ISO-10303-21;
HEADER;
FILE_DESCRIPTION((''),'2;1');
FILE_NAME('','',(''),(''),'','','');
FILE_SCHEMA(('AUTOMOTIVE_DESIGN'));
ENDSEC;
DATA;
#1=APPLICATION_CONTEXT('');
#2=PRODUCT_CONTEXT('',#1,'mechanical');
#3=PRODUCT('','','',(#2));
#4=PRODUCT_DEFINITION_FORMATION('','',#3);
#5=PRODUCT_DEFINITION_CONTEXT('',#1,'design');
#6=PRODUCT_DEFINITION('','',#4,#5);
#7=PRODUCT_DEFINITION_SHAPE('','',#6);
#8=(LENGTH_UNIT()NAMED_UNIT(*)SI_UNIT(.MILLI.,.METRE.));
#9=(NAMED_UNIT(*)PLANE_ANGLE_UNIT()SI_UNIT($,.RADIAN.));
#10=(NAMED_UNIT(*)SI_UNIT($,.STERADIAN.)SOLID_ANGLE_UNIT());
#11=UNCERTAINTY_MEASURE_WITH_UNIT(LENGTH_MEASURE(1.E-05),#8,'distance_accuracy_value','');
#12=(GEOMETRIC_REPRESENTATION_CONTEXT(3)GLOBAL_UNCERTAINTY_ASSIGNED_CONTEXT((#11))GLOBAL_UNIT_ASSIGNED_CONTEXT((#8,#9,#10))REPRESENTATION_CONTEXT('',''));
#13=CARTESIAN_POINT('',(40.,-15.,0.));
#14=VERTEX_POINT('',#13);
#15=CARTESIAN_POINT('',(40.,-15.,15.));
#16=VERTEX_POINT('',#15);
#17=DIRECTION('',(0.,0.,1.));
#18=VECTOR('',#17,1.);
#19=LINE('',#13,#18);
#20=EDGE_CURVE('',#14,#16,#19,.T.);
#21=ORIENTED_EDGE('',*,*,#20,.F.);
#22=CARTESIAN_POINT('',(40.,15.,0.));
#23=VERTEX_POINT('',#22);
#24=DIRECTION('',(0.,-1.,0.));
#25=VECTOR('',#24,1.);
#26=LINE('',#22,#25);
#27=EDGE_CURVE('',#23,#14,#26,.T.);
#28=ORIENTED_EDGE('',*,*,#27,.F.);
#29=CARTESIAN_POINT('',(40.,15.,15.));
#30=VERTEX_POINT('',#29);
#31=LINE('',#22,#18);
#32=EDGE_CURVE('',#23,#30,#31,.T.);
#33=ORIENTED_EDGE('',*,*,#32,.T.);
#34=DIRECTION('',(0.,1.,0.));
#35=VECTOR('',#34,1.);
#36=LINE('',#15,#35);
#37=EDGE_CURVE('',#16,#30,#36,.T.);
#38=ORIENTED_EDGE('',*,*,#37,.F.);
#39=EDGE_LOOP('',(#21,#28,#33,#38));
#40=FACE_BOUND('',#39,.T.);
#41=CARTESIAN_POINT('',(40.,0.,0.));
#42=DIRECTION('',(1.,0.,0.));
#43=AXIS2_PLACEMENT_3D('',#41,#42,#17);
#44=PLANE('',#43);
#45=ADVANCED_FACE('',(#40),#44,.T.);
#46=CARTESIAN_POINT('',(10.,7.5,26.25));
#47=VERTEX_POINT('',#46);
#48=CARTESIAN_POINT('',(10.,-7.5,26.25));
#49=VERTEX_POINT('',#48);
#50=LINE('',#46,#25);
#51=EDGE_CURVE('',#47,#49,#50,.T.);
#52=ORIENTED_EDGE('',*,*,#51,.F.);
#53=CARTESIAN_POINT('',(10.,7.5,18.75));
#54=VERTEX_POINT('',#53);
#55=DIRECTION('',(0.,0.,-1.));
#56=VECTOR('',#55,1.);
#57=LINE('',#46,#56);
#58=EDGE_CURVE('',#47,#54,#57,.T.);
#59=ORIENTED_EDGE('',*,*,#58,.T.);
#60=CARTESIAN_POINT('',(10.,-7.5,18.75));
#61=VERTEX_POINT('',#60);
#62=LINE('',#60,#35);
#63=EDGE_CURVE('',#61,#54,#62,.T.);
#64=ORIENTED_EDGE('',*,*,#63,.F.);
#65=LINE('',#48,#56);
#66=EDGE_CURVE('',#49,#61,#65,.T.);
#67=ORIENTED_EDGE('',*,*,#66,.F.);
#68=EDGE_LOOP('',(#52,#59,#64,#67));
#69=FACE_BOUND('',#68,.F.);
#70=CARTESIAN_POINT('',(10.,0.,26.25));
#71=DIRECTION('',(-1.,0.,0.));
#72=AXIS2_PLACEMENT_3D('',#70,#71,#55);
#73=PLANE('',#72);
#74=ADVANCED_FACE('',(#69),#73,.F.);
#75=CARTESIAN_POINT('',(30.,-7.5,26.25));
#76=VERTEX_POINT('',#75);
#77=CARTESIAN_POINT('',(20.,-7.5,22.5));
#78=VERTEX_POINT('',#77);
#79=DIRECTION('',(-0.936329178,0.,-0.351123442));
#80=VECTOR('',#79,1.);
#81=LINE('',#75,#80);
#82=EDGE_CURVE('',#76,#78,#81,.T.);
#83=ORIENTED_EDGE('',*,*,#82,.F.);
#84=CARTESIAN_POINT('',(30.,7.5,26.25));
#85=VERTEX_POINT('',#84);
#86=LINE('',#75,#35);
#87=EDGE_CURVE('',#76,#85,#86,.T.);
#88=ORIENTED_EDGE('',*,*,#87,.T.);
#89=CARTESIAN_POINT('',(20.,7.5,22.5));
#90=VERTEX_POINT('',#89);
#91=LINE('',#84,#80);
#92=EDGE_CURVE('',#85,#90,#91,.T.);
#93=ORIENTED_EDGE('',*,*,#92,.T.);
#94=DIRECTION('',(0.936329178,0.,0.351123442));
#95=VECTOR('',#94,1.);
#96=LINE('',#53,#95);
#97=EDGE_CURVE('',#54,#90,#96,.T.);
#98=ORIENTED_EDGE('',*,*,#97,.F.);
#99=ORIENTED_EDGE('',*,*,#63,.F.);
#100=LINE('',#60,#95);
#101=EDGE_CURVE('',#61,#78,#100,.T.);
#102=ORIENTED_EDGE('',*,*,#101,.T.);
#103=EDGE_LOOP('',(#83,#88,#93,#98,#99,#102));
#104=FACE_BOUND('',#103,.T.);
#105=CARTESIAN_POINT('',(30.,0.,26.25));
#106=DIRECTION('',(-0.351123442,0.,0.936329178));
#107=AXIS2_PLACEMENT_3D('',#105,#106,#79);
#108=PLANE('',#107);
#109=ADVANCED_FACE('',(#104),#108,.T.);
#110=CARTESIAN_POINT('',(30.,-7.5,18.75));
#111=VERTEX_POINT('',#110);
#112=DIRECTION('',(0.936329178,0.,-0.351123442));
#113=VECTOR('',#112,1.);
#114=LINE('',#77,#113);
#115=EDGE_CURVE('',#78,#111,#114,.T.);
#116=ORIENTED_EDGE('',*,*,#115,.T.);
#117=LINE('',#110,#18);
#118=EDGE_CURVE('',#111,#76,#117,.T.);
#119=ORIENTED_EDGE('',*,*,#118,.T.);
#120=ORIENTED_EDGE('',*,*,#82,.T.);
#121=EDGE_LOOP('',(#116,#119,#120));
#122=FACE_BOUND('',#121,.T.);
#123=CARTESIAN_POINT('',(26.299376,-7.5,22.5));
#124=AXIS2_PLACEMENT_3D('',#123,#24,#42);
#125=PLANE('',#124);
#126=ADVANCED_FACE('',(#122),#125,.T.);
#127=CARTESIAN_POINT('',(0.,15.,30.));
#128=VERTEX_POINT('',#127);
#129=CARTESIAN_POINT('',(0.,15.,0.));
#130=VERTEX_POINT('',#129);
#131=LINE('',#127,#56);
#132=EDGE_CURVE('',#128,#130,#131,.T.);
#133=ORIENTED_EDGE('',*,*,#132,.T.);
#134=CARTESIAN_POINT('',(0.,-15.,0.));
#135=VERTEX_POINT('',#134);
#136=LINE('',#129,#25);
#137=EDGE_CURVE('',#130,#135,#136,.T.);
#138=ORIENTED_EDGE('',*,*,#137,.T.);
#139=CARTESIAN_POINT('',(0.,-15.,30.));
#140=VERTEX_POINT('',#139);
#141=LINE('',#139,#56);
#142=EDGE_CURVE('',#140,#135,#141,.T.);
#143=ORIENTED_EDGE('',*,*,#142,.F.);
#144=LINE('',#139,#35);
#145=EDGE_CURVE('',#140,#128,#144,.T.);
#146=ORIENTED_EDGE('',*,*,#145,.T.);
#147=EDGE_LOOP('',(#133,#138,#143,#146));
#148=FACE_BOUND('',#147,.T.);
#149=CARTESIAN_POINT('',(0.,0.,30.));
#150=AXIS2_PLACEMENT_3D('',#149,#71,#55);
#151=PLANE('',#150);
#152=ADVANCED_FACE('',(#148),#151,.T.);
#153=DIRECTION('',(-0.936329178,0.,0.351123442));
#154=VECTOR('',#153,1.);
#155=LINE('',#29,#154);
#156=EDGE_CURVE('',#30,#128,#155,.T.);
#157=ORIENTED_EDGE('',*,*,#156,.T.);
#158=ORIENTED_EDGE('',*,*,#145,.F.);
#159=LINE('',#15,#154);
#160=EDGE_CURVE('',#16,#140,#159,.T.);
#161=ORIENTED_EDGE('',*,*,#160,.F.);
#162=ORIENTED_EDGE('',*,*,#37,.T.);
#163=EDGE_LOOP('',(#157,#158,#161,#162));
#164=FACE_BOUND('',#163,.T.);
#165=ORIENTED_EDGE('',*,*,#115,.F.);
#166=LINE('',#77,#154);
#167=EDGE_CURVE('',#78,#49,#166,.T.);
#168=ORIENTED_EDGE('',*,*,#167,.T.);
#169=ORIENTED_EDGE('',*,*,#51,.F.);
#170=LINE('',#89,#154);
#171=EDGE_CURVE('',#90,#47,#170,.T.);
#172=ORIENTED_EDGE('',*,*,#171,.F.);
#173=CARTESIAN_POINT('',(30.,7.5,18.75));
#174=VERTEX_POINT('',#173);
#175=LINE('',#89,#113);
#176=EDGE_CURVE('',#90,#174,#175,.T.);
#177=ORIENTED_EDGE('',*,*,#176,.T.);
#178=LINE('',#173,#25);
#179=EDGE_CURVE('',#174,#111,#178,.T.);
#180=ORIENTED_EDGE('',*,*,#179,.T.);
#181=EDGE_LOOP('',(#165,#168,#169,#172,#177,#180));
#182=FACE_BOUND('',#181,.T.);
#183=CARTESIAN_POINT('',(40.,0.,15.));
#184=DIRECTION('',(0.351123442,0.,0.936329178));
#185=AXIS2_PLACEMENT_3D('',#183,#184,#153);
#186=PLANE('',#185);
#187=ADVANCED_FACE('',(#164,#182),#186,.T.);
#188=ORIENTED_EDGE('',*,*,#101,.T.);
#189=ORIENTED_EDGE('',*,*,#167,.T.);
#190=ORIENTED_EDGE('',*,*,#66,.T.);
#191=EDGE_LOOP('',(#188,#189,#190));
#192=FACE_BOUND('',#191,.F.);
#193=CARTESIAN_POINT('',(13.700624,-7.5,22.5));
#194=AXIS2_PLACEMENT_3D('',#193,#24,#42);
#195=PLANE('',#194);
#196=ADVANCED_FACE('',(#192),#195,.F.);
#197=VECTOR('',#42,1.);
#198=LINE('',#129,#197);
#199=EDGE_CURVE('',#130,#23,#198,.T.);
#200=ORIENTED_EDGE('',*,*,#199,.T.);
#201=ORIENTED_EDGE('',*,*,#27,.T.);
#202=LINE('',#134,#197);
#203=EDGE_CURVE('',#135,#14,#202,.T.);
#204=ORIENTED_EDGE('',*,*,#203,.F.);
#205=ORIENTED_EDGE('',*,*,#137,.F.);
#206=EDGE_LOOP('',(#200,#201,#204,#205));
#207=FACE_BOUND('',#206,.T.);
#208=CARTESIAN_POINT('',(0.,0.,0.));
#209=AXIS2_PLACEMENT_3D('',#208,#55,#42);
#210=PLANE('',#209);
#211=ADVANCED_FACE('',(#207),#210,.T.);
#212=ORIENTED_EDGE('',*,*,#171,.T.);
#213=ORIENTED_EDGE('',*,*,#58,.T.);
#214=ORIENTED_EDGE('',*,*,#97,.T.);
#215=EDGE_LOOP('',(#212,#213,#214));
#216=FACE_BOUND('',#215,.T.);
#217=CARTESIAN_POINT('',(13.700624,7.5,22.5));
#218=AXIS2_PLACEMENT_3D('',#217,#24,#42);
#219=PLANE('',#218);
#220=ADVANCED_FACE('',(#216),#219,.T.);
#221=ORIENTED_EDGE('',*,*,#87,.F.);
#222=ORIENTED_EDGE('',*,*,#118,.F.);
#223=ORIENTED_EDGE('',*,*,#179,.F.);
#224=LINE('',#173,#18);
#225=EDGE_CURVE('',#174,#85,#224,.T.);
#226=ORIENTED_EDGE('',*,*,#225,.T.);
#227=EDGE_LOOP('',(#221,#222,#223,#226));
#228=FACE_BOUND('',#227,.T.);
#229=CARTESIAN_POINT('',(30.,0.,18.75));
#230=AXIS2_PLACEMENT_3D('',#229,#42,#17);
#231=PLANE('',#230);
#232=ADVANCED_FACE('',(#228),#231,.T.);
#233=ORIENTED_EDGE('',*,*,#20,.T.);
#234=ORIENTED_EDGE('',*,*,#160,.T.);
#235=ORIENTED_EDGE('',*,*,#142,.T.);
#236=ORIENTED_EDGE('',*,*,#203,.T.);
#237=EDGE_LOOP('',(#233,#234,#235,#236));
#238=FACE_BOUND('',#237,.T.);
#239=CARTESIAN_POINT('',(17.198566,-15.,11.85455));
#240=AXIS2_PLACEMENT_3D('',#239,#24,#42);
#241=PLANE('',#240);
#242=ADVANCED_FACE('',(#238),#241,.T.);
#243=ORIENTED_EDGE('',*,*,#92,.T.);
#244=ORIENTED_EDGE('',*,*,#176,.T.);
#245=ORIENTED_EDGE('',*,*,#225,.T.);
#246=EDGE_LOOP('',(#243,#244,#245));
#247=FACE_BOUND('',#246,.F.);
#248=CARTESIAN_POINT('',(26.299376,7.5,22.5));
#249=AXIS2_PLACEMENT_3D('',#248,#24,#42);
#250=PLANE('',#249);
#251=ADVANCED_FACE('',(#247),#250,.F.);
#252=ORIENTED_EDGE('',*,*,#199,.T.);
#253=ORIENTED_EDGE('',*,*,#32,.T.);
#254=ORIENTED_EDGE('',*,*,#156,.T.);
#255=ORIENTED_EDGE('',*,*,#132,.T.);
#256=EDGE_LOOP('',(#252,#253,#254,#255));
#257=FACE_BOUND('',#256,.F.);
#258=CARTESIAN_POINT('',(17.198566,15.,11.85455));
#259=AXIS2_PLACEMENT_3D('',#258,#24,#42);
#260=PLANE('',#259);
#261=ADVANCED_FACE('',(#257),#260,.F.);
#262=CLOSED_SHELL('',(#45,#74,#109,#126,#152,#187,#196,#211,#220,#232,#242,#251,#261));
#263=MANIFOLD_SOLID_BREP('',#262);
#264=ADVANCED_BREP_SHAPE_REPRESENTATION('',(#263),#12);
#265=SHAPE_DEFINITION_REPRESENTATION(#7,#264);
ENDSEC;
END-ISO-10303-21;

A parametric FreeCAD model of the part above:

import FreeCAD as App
import Part
import Sketcher

V = App.Vector
Q = App.Units.Quantity

doc = App.newDocument("Part")
body = doc.addObject("PartDesign::Body", "Body")

# Sketch on XZ plane
sketch1 = doc.addObject("Sketcher::SketchObject", "Sketch")
body.addObject(sketch1)
sketch1.AttachmentSupport = (doc.XZ_Plane, [""])
sketch1.MapMode = "FlatFace"
sketch1.addGeometry([
    Part.LineSegment(V(0, 30, 0), V(0, 0, 0)),
    Part.LineSegment(V(0, 0, 0), V(40, 0, 0)),
    Part.LineSegment(V(40, 0, 0), V(40, 15, 0)),
    Part.LineSegment(V(40, 15, 0), V(0, 30, 0)),
], False)
sketch1.addConstraint([
    Sketcher.Constraint("Coincident", 0, 2, 1, 1),
    Sketcher.Constraint("Coincident", 1, 2, 2, 1),
    Sketcher.Constraint("Coincident", 2, 2, 3, 1),
    Sketcher.Constraint("Coincident", 3, 2, 0, 1),
    Sketcher.Constraint("Vertical", 0),
    Sketcher.Constraint("Horizontal", 1),
    Sketcher.Constraint("Vertical", 2),
    Sketcher.Constraint("Coincident", 0, 2, -1, 1),
    Sketcher.Constraint("DistanceX", 1, 1, 1, 2, Q("40 mm")),
    Sketcher.Constraint("DistanceY", 0, 2, 0, 1, Q("30 mm")),
    Sketcher.Constraint("DistanceY", 2, 1, 2, 2, Q("15 mm")),
])
pad1 = doc.addObject("PartDesign::Pad", "Pad")
body.addObject(pad1)
pad1.Profile = sketch1
pad1.Length = 30
pad1.Midplane = True

# Sketch on XZ plane
sketch2 = doc.addObject("Sketcher::SketchObject", "Sketch001")
body.addObject(sketch2)
sketch2.AttachmentSupport = (doc.XZ_Plane, [""])
sketch2.MapMode = "FlatFace"
sketch2.addGeometry([
    Part.LineSegment(V(20, 22.5, 0), V(10, 26.25, 0)),
    Part.LineSegment(V(10, 26.25, 0), V(10, 18.75, 0)),
    Part.LineSegment(V(10, 18.75, 0), V(20, 22.5, 0)),
], False)
sketch2.addConstraint([
    Sketcher.Constraint("Coincident", 0, 2, 1, 1),
    Sketcher.Constraint("Coincident", 1, 2, 2, 1),
    Sketcher.Constraint("Coincident", 2, 2, 0, 1),
    Sketcher.Constraint("Vertical", 1),
    Sketcher.Constraint("Equal", 0, 2),
    Sketcher.Constraint("DistanceY", 1, 2, 1, 1, Q("7.5 mm")),
    Sketcher.Constraint("DistanceX", -1, 1, 0, 2, Q("10 mm")),
    Sketcher.Constraint("DistanceX", -1, 1, 2, 2, Q("20 mm")),
    Sketcher.Constraint("DistanceY", -1, 1, 2, 2, Q("22.5 mm")),
])
pocket1 = doc.addObject("PartDesign::Pocket", "Pocket")
body.addObject(pocket1)
pocket1.Profile = sketch2
pocket1.Length = 15
pocket1.Midplane = True

# Sketch on XZ plane
sketch3 = doc.addObject("Sketcher::SketchObject", "Sketch002")
body.addObject(sketch3)
sketch3.AttachmentSupport = (doc.XZ_Plane, [""])
sketch3.MapMode = "FlatFace"
sketch3.addGeometry([
    Part.LineSegment(V(20, 22.5, 0), V(30, 18.75, 0)),
    Part.LineSegment(V(30, 18.75, 0), V(30, 26.25, 0)),
    Part.LineSegment(V(30, 26.25, 0), V(20, 22.5, 0)),
], False)
sketch3.addConstraint([
    Sketcher.Constraint("Coincident", 0, 2, 1, 1),
    Sketcher.Constraint("Coincident", 1, 2, 2, 1),
    Sketcher.Constraint("Coincident", 2, 2, 0, 1),
    Sketcher.Constraint("Vertical", 1),
    Sketcher.Constraint("Equal", 0, 2),
    Sketcher.Constraint("DistanceY", 1, 1, 1, 2, Q("7.5 mm")),
    Sketcher.Constraint("DistanceX", -1, 1, 0, 2, Q("30 mm")),
    Sketcher.Constraint("DistanceX", -1, 1, 2, 2, Q("20 mm")),
    Sketcher.Constraint("DistanceY", -1, 1, 2, 2, Q("22.5 mm")),
])
pad2 = doc.addObject("PartDesign::Pad", "Pad001")
body.addObject(pad2)
pad2.Profile = sketch3
pad2.Length = 15
pad2.Midplane = True

doc.recompute()
